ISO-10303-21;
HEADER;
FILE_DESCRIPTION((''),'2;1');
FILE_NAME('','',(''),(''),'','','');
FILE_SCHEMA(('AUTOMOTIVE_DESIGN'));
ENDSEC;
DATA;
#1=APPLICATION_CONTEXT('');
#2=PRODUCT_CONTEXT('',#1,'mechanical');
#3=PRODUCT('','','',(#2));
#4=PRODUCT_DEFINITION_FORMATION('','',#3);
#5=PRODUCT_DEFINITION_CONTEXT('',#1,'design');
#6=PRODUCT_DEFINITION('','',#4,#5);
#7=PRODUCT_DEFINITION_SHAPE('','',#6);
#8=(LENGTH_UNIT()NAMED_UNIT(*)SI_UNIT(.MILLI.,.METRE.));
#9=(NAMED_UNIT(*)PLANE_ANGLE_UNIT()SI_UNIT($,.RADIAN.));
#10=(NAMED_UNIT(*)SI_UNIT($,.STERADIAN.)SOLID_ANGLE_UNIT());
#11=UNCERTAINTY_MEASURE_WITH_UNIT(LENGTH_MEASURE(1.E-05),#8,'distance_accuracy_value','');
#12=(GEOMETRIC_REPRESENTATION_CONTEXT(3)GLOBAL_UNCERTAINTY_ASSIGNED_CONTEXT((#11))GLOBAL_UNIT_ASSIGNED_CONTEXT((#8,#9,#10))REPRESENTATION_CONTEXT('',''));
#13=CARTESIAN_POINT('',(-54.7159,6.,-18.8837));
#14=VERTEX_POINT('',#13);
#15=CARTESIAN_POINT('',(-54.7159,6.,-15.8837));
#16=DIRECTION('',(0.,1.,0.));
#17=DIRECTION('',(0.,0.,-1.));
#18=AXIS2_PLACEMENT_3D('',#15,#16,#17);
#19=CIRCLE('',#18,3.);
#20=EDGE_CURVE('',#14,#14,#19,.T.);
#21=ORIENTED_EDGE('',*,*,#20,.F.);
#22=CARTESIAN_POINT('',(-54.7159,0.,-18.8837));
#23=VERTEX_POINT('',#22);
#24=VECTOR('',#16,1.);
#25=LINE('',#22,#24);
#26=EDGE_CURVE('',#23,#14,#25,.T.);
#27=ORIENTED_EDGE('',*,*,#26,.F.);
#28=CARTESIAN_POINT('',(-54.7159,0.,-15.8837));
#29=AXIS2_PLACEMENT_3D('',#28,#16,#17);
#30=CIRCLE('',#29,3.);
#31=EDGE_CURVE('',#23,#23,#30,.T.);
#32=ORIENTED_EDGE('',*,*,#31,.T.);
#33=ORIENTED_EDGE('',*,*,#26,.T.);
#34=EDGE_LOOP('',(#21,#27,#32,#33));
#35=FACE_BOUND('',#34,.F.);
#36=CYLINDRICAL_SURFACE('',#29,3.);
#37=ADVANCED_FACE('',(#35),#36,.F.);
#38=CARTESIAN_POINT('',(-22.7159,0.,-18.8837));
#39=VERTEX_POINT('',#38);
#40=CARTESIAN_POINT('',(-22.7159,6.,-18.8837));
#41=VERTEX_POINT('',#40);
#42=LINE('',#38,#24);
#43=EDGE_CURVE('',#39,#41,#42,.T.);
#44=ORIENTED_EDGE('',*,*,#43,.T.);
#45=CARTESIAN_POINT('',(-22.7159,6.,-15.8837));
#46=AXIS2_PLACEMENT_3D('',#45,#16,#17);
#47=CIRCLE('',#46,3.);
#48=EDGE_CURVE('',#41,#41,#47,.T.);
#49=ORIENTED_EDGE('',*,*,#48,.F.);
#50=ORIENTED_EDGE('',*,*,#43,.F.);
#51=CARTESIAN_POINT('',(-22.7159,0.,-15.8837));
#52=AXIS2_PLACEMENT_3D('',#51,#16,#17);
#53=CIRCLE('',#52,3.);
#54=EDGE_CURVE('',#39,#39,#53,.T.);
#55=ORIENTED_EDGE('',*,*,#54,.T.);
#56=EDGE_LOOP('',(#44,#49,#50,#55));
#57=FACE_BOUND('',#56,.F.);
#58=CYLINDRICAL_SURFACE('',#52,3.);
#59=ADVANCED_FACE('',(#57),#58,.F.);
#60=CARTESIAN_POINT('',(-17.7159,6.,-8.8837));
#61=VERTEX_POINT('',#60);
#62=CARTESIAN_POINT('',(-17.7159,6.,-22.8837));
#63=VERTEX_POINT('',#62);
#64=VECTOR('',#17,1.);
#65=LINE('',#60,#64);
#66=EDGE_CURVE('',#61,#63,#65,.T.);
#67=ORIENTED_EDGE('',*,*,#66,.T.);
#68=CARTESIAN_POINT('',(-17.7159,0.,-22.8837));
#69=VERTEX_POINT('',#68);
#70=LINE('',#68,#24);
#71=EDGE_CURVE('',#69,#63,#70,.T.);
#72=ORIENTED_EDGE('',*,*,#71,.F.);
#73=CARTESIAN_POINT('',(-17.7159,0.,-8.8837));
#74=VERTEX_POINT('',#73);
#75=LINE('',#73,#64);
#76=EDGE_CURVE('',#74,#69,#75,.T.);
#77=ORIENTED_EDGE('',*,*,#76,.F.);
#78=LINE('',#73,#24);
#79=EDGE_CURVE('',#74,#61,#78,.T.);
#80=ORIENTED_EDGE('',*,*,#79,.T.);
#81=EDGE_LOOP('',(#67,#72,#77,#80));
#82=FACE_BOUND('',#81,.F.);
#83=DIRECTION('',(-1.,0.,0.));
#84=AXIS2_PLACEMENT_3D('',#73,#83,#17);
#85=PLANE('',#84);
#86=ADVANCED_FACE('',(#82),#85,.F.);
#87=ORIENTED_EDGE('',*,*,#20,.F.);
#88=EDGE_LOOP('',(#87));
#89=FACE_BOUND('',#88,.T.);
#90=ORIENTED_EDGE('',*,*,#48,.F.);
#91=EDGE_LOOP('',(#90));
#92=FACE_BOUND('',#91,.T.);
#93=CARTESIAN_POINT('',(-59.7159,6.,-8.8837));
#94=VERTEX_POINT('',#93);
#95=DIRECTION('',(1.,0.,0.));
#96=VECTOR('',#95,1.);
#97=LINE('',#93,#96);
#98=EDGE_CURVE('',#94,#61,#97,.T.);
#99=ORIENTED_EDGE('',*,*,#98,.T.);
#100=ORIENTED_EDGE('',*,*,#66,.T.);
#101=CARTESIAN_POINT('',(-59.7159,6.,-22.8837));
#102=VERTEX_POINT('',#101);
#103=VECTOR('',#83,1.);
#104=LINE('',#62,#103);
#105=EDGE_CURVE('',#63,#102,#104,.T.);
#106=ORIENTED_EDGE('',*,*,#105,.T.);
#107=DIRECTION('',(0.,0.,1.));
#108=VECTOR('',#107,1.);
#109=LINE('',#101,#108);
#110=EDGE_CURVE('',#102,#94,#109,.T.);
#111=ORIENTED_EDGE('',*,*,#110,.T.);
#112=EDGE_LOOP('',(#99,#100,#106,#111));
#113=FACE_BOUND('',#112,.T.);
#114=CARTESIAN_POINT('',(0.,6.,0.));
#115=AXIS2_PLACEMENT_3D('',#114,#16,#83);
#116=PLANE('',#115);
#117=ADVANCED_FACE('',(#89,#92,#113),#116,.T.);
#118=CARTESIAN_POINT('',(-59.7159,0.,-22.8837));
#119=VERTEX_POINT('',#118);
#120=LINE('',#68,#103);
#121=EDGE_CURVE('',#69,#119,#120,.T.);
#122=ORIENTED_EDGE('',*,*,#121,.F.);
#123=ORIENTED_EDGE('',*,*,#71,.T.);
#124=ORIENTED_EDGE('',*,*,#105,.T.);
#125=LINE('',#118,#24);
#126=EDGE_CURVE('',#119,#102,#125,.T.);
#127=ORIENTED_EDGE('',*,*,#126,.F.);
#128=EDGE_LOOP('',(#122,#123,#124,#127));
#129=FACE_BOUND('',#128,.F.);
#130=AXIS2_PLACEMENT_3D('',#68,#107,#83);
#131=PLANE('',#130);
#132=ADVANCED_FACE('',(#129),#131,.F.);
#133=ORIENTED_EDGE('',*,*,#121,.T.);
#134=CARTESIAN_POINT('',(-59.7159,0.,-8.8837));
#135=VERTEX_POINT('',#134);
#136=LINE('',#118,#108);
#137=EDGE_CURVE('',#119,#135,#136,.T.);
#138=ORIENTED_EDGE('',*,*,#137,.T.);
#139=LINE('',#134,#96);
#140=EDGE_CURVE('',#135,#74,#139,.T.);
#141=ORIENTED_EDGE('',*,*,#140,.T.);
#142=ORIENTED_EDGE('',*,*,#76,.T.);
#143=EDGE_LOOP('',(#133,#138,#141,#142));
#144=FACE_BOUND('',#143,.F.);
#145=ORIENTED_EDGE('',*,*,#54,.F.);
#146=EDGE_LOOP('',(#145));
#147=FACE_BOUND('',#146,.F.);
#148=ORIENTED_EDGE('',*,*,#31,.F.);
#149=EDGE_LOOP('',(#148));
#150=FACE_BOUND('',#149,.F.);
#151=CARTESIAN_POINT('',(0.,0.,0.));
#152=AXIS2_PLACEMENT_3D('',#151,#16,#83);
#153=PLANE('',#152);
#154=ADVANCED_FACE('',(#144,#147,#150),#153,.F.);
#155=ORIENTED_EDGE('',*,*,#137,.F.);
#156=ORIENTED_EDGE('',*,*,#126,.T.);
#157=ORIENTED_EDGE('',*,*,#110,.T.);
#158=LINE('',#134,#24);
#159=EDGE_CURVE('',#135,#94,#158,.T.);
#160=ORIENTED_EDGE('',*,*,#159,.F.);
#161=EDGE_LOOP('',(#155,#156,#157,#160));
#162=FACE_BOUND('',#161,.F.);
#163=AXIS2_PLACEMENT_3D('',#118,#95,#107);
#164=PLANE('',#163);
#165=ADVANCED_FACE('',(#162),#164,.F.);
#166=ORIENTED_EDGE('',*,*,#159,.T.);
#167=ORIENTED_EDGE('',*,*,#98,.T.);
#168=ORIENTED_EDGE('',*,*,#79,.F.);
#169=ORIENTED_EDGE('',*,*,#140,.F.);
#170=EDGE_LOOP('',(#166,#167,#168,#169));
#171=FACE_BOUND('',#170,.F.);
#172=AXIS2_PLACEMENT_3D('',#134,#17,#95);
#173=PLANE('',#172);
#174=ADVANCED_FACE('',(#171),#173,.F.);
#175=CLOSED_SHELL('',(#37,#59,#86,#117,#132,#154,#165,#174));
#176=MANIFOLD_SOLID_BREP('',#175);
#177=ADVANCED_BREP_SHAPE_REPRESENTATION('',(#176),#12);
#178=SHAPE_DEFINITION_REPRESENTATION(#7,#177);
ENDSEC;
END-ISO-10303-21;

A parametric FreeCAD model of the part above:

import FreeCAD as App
import Part
import Sketcher

V = App.Vector


def add_polygon(sketch, points):
    """Adds a closed chain of lines whose ends are joined by coincident constraints."""
    first, n = sketch.GeometryCount, len(points)
    for a, b in zip(points, points[1:] + points[:1]):
        sketch.addGeometry(Part.LineSegment(App.Vector(*a, 0), App.Vector(*b, 0)), False)
    for i in range(n):
        sketch.addConstraint(Sketcher.Constraint("Coincident", first + i, 2, first + (i + 1) % n, 1))

doc = App.newDocument("Part")
body = doc.addObject("PartDesign::Body", "Body")

sketch1 = body.newObject("Sketcher::SketchObject", "Sketch")
sketch1.AttachmentSupport = (doc.getObject("XZ_Plane"), [""])
sketch1.MapMode = "FlatFace"
add_polygon(sketch1, [(-59.7159, -22.8837), (-59.7159, -8.8837), (-17.7159, -8.8837), (-17.7159, -22.8837)])
sketch1.addConstraint(Sketcher.Constraint("Vertical", 0))
sketch1.addConstraint(Sketcher.Constraint("Horizontal", 1))
sketch1.addConstraint(Sketcher.Constraint("Vertical", 2))
sketch1.addConstraint(Sketcher.Constraint("Horizontal", 3))
sketch1.addConstraint(Sketcher.Constraint("DistanceX", 1, 1, 1, 2, 42.0))
sketch1.addConstraint(Sketcher.Constraint("DistanceY", 0, 1, 0, 2, 14.0))
sketch1.addConstraint(Sketcher.Constraint("DistanceX", 0, 2, -1, 1, 59.716))
sketch1.addConstraint(Sketcher.Constraint("DistanceY", 0, 2, -1, 1, 8.8837))
pad1 = body.newObject("PartDesign::Pad", "Pad")
pad1.Profile = sketch1
pad1.Length = 6
pad1.Reversed = True

sketch2 = body.newObject("Sketcher::SketchObject", "Sketch001")
sketch2.AttachmentSupport = (doc.getObject("XZ_Plane"), [""])
sketch2.MapMode = "FlatFace"
sketch2.addGeometry(Part.Circle(V(-54.7159, -15.8837, 0), V(0, 0, 1), 3), False)
sketch2.addGeometry(Part.Circle(V(-22.7159, -15.8837, 0), V(0, 0, 1), 3), False)
sketch2.addConstraint(Sketcher.Constraint("Equal", 0, 1))
sketch2.addConstraint(Sketcher.Constraint("Horizontal", 0, 3, 1, 3))
sketch2.addConstraint(Sketcher.Constraint("Diameter", 0, 6.0))
sketch2.addConstraint(Sketcher.Constraint("DistanceX", 0, 3, 1, 3, 32.0))
sketch2.addConstraint(Sketcher.Constraint("DistanceX", 0, 3, -1, 1, 54.716))
sketch2.addConstraint(Sketcher.Constraint("DistanceY", 0, 3, -1, 1, 15.8837))
doc.recompute()
hole = body.newObject("PartDesign::Hole", "Hole")
hole.Profile = sketch2
hole.ThreadType = "None"
hole.Diameter = 6
hole.DepthType = "ThroughAll"

doc.recompute()
